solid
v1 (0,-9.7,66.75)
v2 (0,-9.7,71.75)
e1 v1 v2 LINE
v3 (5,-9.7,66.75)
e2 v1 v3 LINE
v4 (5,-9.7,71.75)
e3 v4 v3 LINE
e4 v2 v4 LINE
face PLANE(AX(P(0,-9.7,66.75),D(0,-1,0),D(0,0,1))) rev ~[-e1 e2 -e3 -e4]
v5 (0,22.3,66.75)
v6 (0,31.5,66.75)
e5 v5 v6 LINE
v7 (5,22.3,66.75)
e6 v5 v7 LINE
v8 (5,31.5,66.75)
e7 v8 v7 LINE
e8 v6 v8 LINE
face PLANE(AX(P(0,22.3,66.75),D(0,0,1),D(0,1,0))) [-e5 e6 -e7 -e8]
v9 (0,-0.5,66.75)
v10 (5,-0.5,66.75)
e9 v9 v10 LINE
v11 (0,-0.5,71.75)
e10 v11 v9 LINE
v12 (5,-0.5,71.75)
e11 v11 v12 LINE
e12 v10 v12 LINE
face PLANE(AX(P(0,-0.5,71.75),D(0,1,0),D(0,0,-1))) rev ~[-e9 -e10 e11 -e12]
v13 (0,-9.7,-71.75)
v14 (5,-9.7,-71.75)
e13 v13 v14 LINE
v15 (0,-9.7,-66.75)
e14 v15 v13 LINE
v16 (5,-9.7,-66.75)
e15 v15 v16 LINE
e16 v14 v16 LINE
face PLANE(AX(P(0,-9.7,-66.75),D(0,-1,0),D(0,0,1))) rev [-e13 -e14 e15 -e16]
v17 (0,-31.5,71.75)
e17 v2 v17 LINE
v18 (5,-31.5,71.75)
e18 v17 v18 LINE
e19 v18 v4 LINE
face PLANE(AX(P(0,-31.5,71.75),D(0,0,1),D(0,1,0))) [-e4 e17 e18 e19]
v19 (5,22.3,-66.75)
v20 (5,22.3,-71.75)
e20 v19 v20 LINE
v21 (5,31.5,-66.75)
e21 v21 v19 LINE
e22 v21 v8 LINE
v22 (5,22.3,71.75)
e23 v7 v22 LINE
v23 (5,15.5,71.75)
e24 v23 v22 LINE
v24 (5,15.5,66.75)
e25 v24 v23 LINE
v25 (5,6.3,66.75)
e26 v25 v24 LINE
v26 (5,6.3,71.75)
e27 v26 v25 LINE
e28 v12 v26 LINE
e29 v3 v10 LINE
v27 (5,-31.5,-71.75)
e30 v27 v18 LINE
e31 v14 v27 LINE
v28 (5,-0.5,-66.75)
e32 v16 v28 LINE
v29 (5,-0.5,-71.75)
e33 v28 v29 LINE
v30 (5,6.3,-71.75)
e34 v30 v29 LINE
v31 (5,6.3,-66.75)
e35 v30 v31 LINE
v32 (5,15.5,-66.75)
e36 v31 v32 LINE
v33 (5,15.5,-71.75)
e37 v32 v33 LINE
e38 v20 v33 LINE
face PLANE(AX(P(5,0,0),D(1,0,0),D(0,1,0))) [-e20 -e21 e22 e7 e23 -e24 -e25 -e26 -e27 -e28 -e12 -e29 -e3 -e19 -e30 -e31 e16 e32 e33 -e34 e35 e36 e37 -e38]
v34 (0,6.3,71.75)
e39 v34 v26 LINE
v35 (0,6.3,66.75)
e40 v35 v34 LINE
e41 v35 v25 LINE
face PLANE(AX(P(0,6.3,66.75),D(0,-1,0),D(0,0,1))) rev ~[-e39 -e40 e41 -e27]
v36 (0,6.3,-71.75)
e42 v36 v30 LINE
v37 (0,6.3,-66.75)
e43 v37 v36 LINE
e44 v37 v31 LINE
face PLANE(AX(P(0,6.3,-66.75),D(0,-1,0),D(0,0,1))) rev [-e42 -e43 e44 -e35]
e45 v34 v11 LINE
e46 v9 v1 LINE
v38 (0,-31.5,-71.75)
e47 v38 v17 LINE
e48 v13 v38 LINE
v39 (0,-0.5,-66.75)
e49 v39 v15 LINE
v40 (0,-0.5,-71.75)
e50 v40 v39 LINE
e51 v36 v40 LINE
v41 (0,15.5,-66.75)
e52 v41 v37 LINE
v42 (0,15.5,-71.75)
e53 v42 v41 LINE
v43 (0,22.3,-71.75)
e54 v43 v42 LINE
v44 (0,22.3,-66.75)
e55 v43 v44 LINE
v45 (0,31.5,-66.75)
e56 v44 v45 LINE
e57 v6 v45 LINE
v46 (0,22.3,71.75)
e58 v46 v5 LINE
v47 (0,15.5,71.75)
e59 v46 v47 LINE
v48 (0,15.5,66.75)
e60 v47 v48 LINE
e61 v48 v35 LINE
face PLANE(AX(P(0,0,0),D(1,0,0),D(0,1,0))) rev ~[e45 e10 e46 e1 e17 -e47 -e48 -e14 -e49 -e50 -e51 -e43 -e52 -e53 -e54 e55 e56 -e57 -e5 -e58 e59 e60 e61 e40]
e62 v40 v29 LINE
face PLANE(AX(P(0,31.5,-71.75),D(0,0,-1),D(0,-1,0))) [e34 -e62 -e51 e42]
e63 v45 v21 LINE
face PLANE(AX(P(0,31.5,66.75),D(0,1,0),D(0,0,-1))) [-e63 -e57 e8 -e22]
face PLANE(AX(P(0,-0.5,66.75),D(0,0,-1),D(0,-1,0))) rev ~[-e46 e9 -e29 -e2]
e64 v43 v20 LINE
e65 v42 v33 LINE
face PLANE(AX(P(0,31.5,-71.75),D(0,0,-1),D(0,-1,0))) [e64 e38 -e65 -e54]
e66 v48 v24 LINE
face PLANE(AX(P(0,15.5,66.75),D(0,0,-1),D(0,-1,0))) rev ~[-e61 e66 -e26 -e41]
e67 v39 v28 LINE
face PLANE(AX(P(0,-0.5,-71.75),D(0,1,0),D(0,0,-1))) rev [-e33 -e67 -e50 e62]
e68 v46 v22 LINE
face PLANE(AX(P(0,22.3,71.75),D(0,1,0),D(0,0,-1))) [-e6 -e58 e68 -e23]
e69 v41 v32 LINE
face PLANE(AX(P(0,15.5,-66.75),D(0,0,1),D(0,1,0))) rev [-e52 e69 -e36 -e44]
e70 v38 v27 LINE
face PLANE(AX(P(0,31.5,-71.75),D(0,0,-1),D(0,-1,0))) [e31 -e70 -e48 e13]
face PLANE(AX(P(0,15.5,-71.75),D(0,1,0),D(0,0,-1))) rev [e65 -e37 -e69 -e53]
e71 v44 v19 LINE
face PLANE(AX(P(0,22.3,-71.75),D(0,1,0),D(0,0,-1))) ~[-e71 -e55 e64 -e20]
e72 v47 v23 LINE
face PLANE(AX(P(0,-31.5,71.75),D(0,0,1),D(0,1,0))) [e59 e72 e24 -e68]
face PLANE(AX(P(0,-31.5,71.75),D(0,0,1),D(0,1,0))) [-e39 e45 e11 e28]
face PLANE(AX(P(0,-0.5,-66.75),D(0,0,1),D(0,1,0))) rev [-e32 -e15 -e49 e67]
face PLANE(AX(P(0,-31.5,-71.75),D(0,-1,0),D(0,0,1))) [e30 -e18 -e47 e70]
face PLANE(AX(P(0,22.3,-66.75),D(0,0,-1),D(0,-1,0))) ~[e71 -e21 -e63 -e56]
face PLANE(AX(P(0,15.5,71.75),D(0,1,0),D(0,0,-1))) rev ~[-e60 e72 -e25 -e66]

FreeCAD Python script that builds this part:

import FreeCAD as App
import Part
import Sketcher
from FreeCAD import Vector

doc = App.newDocument("Part")
params = doc.addObject("Spreadsheet::Sheet", "Params")
for row, (alias, value) in enumerate([
    ("sketch1_width", "63 mm"),
    ("sketch1_height", "143.5 mm"),
    ("pad1_length", "5 mm"),
    ("sketch2_height", "5 mm"),
    ("sketch2_width", "9.2 mm"),
], start=1):
    params.set(f"A{row}", alias)
    params.set(f"B{row}", "=" + value)
    params.setAlias(f"B{row}", alias)

body = doc.addObject("PartDesign::Body", "Body")

# Sketch on YZ plane
sketch1 = body.newObject("Sketcher::SketchObject", "Sketch")
sketch1.AttachmentSupport = (doc.getObject("YZ_Plane"), [""])
sketch1.MapMode = "FlatFace"
sketch1.addGeometry([
    Part.LineSegment(Vector(-32, 72, 0), Vector(-32, -72, 0)),
    Part.LineSegment(Vector(-32, -72, 0), Vector(32, -72, 0)),
    Part.LineSegment(Vector(32, -72, 0), Vector(32, 72, 0)),
    Part.LineSegment(Vector(32, 72, 0), Vector(-32, 72, 0)),
], False)
sketch1.addConstraint([
    Sketcher.Constraint("Coincident", 0, 2, 1, 1),
    Sketcher.Constraint("Coincident", 1, 2, 2, 1),
    Sketcher.Constraint("Coincident", 2, 2, 3, 1),
    Sketcher.Constraint("Coincident", 3, 2, 0, 1),
    Sketcher.Constraint("Vertical", 0),
    Sketcher.Constraint("Horizontal", 1),
    Sketcher.Constraint("Vertical", 2),
    Sketcher.Constraint("Horizontal", 3),
    Sketcher.Constraint("Symmetric", 0, 2, 2, 2, -1, 1),
    Sketcher.Constraint("DistanceX", 1, 1, 1, 2, 63.0),
    Sketcher.Constraint("DistanceY", 0, 2, 0, 1, 143.5),
])
sketch1.setExpression("Constraints[9]", "Params.sketch1_width")
sketch1.setExpression("Constraints[10]", "Params.sketch1_height")
pad1 = body.newObject("PartDesign::Pad", "Pad")
pad1.Profile = sketch1
pad1.setExpression("Length", "Params.pad1_length")

# Sketch on YZ plane
sketch2 = body.newObject("Sketcher::SketchObject", "Sketch001")
sketch2.AttachmentSupport = (doc.getObject("YZ_Plane"), [""])
sketch2.MapMode = "FlatFace"
sketch2.addGeometry([
    Part.LineSegment(Vector(0, 72, 0), Vector(-10, 72, 0)),  # 0
    Part.LineSegment(Vector(-10, 72, 0), Vector(-10, 67, 0)),  # 1
    Part.LineSegment(Vector(-10, 67, 0), Vector(0, 67, 0)),  # 2
    Part.LineSegment(Vector(0, 67, 0), Vector(0, 72, 0)),  # 3
    Part.LineSegment(Vector(16, 72, 0), Vector(6, 72, 0)),  # 4
    Part.LineSegment(Vector(6, 72, 0), Vector(6, 67, 0)),  # 5
    Part.LineSegment(Vector(6, 67, 0), Vector(16, 67, 0)),  # 6
    Part.LineSegment(Vector(16, 67, 0), Vector(16, 72, 0)),  # 7
    Part.LineSegment(Vector(22, 67, 0), Vector(32, 67, 0)),  # 8
    Part.LineSegment(Vector(32, 67, 0), Vector(32, 72, 0)),  # 9
    Part.LineSegment(Vector(32, 72, 0), Vector(22, 72, 0)),  # 10
    Part.LineSegment(Vector(22, 72, 0), Vector(22, 67, 0)),  # 11
], False)
sketch2.addConstraint([
    Sketcher.Constraint("Coincident", 0, 2, 1, 1),
    Sketcher.Constraint("Coincident", 1, 2, 2, 1),
    Sketcher.Constraint("Coincident", 2, 2, 3, 1),
    Sketcher.Constraint("Coincident", 3, 2, 0, 1),
    Sketcher.Constraint("Coincident", 4, 2, 5, 1),
    Sketcher.Constraint("Coincident", 5, 2, 6, 1),
    Sketcher.Constraint("Coincident", 6, 2, 7, 1),
    Sketcher.Constraint("Coincident", 7, 2, 4, 1),
    Sketcher.Constraint("Coincident", 8, 2, 9, 1),
    Sketcher.Constraint("Coincident", 9, 2, 10, 1),
    Sketcher.Constraint("Coincident", 10, 2, 11, 1),
    Sketcher.Constraint("Coincident", 11, 2, 8, 1),
    Sketcher.Constraint("Horizontal", 0),
    Sketcher.Constraint("Vertical", 1),
    Sketcher.Constraint("Horizontal", 2),
    Sketcher.Constraint("Vertical", 3),
    Sketcher.Constraint("Horizontal", 4),
    Sketcher.Constraint("Vertical", 5),
    Sketcher.Constraint("Horizontal", 6),
    Sketcher.Constraint("Vertical", 7),
    Sketcher.Constraint("Horizontal", 8),
    Sketcher.Constraint("Vertical", 9),
    Sketcher.Constraint("Horizontal", 10),
    Sketcher.Constraint("Vertical", 11),
    Sketcher.Constraint("Horizontal", 3, 2, 4, 2),
    Sketcher.Constraint("Horizontal", 2, 2, 5, 2),
    Sketcher.Constraint("Horizontal", 6, 2, 8, 2),
    Sketcher.Constraint("Horizontal", 7, 2, 9, 2),
    Sketcher.Constraint("Equal", 2, 4),
    Sketcher.Constraint("Equal", 6, 8),
    Sketcher.Constraint("DistanceY", 1, 2, 1, 1, 5.0),
    Sketcher.Constraint("DistanceX", 0, 2, 0, 1, 9.2),
    Sketcher.Constraint("DistanceX", 0, 2, 4, 2, 16.0),
    Sketcher.Constraint("DistanceX", 6, 2, 8, 2, 16.0),
    Sketcher.Constraint("DistanceX", 0, 2, -1, 1, 9.7),
    Sketcher.Constraint("DistanceY", -1, 1, 0, 2, 71.75),
])
sketch2.setExpression("Constraints[30]", "Params.sketch2_height")
sketch2.setExpression("Constraints[31]", "Params.sketch2_width")
pocket1 = body.newObject("PartDesign::Pocket", "Pocket")
pocket1.Profile = sketch2
pocket1.Type = "ThroughAll"
pocket1.Reversed = True
doc.recompute()

mirrored = body.newObject("PartDesign::Mirrored", "Mirrored")
mirrored.Originals = [pocket1]
mirrored.MirrorPlane = (doc.getObject("XY_Plane"), [""])
body.Tip = mirrored

doc.recompute()
